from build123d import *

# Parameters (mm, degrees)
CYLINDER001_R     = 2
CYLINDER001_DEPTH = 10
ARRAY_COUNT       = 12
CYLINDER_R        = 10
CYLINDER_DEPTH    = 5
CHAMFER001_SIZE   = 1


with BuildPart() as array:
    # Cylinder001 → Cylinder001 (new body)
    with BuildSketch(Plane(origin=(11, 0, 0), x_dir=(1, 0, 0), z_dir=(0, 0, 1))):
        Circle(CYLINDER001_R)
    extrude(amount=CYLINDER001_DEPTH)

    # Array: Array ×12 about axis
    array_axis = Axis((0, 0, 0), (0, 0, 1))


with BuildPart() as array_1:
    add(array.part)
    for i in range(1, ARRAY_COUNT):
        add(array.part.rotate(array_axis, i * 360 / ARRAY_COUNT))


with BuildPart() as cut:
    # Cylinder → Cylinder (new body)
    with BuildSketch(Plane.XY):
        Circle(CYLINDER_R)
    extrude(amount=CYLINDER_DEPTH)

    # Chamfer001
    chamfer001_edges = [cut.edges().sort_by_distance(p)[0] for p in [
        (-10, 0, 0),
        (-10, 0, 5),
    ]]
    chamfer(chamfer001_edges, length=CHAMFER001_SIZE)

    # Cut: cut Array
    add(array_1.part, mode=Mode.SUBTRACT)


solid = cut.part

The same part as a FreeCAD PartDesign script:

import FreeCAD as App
import Part
import Sketcher
from FreeCAD import Vector


def edges_at(feature, points):
    """Names of the edges that pass closest to the given points."""
    edges = feature.Shape.Edges
    near = lambda p: min(range(len(edges)), key=lambda i: edges[i].distToShape(Part.Vertex(*p))[0])
    return sorted({f"Edge{near(p) + 1}" for p in points})

doc = App.newDocument("Part")
body = doc.addObject("PartDesign::Body", "Body")

# Sketch on XY plane
sketch1 = body.newObject("Sketcher::SketchObject", "Sketch")
sketch1.AttachmentSupport = (doc.getObject("XY_Plane"), [""])
sketch1.MapMode = "FlatFace"
sketch1.addGeometry(Part.Circle(Vector(11, 0, 0), Vector(0, 0, 1), 2), False)
sketch1.addConstraint([
    Sketcher.Constraint("PointOnObject", 0, 3, -1),
    Sketcher.Constraint("Diameter", 0, 4.0),
    Sketcher.Constraint("DistanceX", -1, 1, 0, 3, 11.0),
])
pad1 = body.newObject("PartDesign::Pad", "Pad")
pad1.Profile = sketch1
pad1.Length = 10
body2 = doc.addObject("PartDesign::Body", "Body001")
body2.AllowCompound = True
doc.recompute()

body2.BaseFeature = body
doc.recompute()

body3 = doc.addObject("PartDesign::Body", "Body002")
body3.BaseFeature = body
body3.Placement = App.Placement(Vector(0, 0, 0), App.Rotation(Vector(0, 0, 1), 30))
boolean = body2.newObject("PartDesign::Boolean", "Boolean")
boolean.Type = "Fuse"
boolean.addObjects([body3])
doc.recompute()

body4 = doc.addObject("PartDesign::Body", "Body003")
body4.BaseFeature = body
body4.Placement = App.Placement(Vector(0, 0, 0), App.Rotation(Vector(0, 0, 1), 60))
boolean2 = body2.newObject("PartDesign::Boolean", "Boolean001")
boolean2.Type = "Fuse"
boolean2.addObjects([body4])
doc.recompute()

body5 = doc.addObject("PartDesign::Body", "Body004")
body5.BaseFeature = body
body5.Placement = App.Placement(Vector(0, 0, 0), App.Rotation(Vector(0, 0, 1), 90))
boolean3 = body2.newObject("PartDesign::Boolean", "Boolean002")
boolean3.Type = "Fuse"
boolean3.addObjects([body5])
doc.recompute()

body6 = doc.addObject("PartDesign::Body", "Body005")
body6.BaseFeature = body
body6.Placement = App.Placement(Vector(0, 0, 0), App.Rotation(Vector(0, 0, 1), 120))
boolean4 = body2.newObject("PartDesign::Boolean", "Boolean003")
boolean4.Type = "Fuse"
boolean4.addObjects([body6])
doc.recompute()

body7 = doc.addObject("PartDesign::Body", "Body006")
body7.BaseFeature = body
body7.Placement = App.Placement(Vector(0, 0, 0), App.Rotation(Vector(0, 0, 1), 150))
boolean5 = body2.newObject("PartDesign::Boolean", "Boolean004")
boolean5.Type = "Fuse"
boolean5.addObjects([body7])
doc.recompute()

body8 = doc.addObject("PartDesign::Body", "Body007")
body8.BaseFeature = body
body8.Placement = App.Placement(Vector(0, 0, 0), App.Rotation(Vector(0, 0, 1), 180))
boolean6 = body2.newObject("PartDesign::Boolean", "Boolean005")
boolean6.Type = "Fuse"
boolean6.addObjects([body8])
doc.recompute()

body9 = doc.addObject("PartDesign::Body", "Body008")
body9.BaseFeature = body
body9.Placement = App.Placement(Vector(0, 0, 0), App.Rotation(Vector(0, 0, 1), 210))
boolean7 = body2.newObject("PartDesign::Boolean", "Boolean006")
boolean7.Type = "Fuse"
boolean7.addObjects([body9])
doc.recompute()

body10 = doc.addObject("PartDesign::Body", "Body009")
body10.BaseFeature = body
body10.Placement = App.Placement(Vector(0, 0, 0), App.Rotation(Vector(0, 0, 1), 240))
boolean8 = body2.newObject("PartDesign::Boolean", "Boolean007")
boolean8.Type = "Fuse"
boolean8.addObjects([body10])
doc.recompute()

body11 = doc.addObject("PartDesign::Body", "Body010")
body11.BaseFeature = body
body11.Placement = App.Placement(Vector(0, 0, 0), App.Rotation(Vector(0, 0, 1), 270))
boolean9 = body2.newObject("PartDesign::Boolean", "Boolean008")
boolean9.Type = "Fuse"
boolean9.addObjects([body11])
doc.recompute()

body12 = doc.addObject("PartDesign::Body", "Body011")
body12.BaseFeature = body
body12.Placement = App.Placement(Vector(0, 0, 0), App.Rotation(Vector(0, 0, 1), 300))
boolean10 = body2.newObject("PartDesign::Boolean", "Boolean009")
boolean10.Type = "Fuse"
boolean10.addObjects([body12])
doc.recompute()

body.Placement = App.Placement(Vector(0, 0, 0), App.Rotation(Vector(0, 0, 1), 330))
boolean11 = body2.newObject("PartDesign::Boolean", "Boolean010")
boolean11.Type = "Fuse"
boolean11.addObjects([body])
body13 = doc.addObject("PartDesign::Body", "Body012")

# Sketch on XY plane
sketch2 = body13.newObject("Sketcher::SketchObject", "Sketch001")
sketch2.AttachmentSupport = (doc.getObject("XY_Plane012"), [""])
sketch2.MapMode = "FlatFace"
sketch2.addGeometry(Part.Circle(Vector(0, 0, 0), Vector(0, 0, 1), 10), False)
sketch2.addConstraint([
    Sketcher.Constraint("Coincident", 0, 3, -1, 1),
    Sketcher.Constraint("Diameter", 0, 20.0),
])
pad2 = body13.newObject("PartDesign::Pad", "Pad001")
pad2.Profile = sketch2
pad2.Length = 5
doc.recompute()

chamfer = body13.newObject("PartDesign::Chamfer", "Chamfer")
chamfer.Base = (pad2, edges_at(pad2, [(-10, 0, 0), (-10, 0, 5)]))
chamfer.Size = 1
doc.recompute()

boolean12 = body13.newObject("PartDesign::Boolean", "Boolean011")
boolean12.Type = "Cut"
boolean12.addObjects([body2])

doc.recompute()
